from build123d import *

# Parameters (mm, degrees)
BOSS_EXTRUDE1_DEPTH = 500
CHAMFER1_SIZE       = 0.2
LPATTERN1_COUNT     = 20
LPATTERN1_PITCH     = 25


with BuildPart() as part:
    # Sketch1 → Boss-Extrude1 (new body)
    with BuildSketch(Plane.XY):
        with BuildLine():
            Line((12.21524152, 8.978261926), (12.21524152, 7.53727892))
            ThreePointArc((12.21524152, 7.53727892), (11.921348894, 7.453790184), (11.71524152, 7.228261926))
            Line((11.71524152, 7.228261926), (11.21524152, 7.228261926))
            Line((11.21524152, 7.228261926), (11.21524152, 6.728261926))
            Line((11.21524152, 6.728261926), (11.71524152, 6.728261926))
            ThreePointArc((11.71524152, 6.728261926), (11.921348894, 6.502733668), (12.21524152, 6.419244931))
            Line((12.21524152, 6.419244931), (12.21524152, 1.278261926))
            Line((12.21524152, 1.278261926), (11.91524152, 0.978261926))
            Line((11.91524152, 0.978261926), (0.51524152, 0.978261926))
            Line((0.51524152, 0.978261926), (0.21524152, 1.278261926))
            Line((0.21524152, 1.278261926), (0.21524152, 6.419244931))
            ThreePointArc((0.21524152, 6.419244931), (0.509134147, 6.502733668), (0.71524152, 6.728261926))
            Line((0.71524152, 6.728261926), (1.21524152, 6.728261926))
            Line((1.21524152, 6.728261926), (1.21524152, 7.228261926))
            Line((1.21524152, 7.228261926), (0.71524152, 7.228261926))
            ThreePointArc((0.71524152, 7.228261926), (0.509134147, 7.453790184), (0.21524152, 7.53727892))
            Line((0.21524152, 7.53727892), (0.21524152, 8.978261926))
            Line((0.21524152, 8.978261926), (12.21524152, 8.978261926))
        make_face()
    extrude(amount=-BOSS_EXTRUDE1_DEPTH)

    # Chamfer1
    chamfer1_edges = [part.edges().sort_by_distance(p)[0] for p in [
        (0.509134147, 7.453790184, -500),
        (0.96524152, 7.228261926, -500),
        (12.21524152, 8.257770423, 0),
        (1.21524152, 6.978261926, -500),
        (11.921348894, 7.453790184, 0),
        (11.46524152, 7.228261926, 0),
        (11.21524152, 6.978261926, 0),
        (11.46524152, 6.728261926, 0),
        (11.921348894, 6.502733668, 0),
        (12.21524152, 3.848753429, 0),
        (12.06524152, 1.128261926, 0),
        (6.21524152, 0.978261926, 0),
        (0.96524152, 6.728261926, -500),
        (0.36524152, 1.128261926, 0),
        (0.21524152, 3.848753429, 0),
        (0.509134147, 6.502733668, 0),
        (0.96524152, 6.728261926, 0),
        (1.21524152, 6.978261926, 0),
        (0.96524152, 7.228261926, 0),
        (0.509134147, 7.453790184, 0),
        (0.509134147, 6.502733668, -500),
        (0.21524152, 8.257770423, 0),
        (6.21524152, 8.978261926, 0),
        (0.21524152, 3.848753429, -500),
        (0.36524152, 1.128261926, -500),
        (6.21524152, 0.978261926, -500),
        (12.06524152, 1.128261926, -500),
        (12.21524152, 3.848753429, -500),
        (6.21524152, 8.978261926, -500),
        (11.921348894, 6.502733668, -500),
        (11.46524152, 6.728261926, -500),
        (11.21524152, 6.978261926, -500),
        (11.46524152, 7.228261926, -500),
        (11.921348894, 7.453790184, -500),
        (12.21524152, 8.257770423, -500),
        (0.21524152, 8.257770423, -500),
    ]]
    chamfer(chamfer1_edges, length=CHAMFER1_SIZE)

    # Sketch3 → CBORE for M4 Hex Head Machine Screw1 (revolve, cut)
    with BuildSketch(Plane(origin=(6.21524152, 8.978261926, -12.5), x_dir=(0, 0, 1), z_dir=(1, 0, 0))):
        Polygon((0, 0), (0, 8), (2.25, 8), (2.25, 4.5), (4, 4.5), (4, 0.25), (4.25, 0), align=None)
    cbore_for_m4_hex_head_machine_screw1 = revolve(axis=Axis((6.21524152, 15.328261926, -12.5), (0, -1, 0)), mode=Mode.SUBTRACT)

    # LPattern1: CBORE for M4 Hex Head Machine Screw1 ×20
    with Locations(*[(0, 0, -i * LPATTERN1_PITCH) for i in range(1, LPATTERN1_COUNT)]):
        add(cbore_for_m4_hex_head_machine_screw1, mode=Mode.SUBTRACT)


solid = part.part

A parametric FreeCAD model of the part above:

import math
import FreeCAD as App
import Part
import Sketcher
from FreeCAD import Vector
Q = App.Units.Quantity


def edges_at(feature, points):
    """Names of the edges that pass closest to the given points."""
    edges = feature.Shape.Edges
    near = lambda p: min(range(len(edges)), key=lambda i: edges[i].distToShape(Part.Vertex(*p))[0])
    return sorted({f"Edge{near(p) + 1}" for p in points})

doc = App.newDocument("Part")
params = doc.addObject("Spreadsheet::Sheet", "Params")
for row, (alias, value) in enumerate([
    ("sketch1_width", "12 mm"),
    ("sketch1_width2", "0.5 mm"),
    ("sketch1_width3", "11.4 mm"),
    ("pad1_length", "500 mm"),
    ("chamfer_size", "0.2 mm"),
    ("sketch2_width", "8 mm"),
    ("sketch2_width2", "3.5 mm"),
    ("groove_angle", "360 deg"),
    ("linearpattern_pitch", "25 mm"),
], start=1):
    params.set(f"A{row}", alias)
    params.set(f"B{row}", "=" + value)
    params.setAlias(f"B{row}", alias)

body = doc.addObject("PartDesign::Body", "Body")

sketch1 = body.newObject("Sketcher::SketchObject", "Sketch")
sketch1.AttachmentSupport = (doc.getObject("XY_Plane"), [""])
sketch1.MapMode = "FlatFace"
sketch1.addGeometry(Part.LineSegment(Vector(12.22, 7.54, 0), Vector(12.22, 8.98, 0)), False)
sketch1.addGeometry(Part.LineSegment(Vector(12.22, 8.98, 0), Vector(0.22, 8.98, 0)), False)
sketch1.addGeometry(Part.LineSegment(Vector(0.22, 8.98, 0), Vector(0.22, 7.54, 0)), False)
sketch1.addGeometry(Part.ArcOfCircle(Part.Circle(Vector(0.22, 6.98, 0), Vector(0, 0, 1), 0.56), math.radians(27), math.radians(90)), False)
sketch1.addGeometry(Part.LineSegment(Vector(0.72, 7.23, 0), Vector(1.22, 7.23, 0)), False)
sketch1.addGeometry(Part.LineSegment(Vector(1.22, 7.23, 0), Vector(1.22, 6.73, 0)), False)
sketch1.addGeometry(Part.LineSegment(Vector(1.22, 6.73, 0), Vector(0.72, 6.73, 0)), False)
sketch1.addGeometry(Part.ArcOfCircle(Part.Circle(Vector(0.22, 6.98, 0), Vector(0, 0, 1), 0.56), math.radians(-90), math.radians(-27)), False)
sketch1.addGeometry(Part.LineSegment(Vector(0.22, 6.42, 0), Vector(0.22, 1.28, 0)), False)
sketch1.addGeometry(Part.LineSegment(Vector(0.22, 1.28, 0), Vector(0.52, 0.98, 0)), False)
sketch1.addGeometry(Part.LineSegment(Vector(0.52, 0.98, 0), Vector(11.92, 0.98, 0)), False)
sketch1.addGeometry(Part.LineSegment(Vector(11.92, 0.98, 0), Vector(12.22, 1.28, 0)), False)
sketch1.addGeometry(Part.LineSegment(Vector(12.22, 1.28, 0), Vector(12.22, 6.42, 0)), False)
sketch1.addGeometry(Part.ArcOfCircle(Part.Circle(Vector(12.22, 6.98, 0), Vector(0, 0, 1), 0.56), math.radians(-153), math.radians(-90)), False)
sketch1.addGeometry(Part.LineSegment(Vector(11.72, 6.73, 0), Vector(11.22, 6.73, 0)), False)
sketch1.addGeometry(Part.LineSegment(Vector(11.22, 6.73, 0), Vector(11.22, 7.23, 0)), False)
sketch1.addGeometry(Part.LineSegment(Vector(11.22, 7.23, 0), Vector(11.72, 7.23, 0)), False)
sketch1.addGeometry(Part.ArcOfCircle(Part.Circle(Vector(12.22, 6.98, 0), Vector(0, 0, 1), 0.56), math.radians(90), math.radians(153)), False)
sketch1.addConstraint(Sketcher.Constraint("Coincident", 0, 2, 1, 1))
sketch1.addConstraint(Sketcher.Constraint("Coincident", 1, 2, 2, 1))
sketch1.addConstraint(Sketcher.Constraint("Coincident", 2, 2, 3, 2))
sketch1.addConstraint(Sketcher.Constraint("Coincident", 3, 1, 4, 1))
sketch1.addConstraint(Sketcher.Constraint("Coincident", 4, 2, 5, 1))
sketch1.addConstraint(Sketcher.Constraint("Coincident", 5, 2, 6, 1))
sketch1.addConstraint(Sketcher.Constraint("Coincident", 6, 2, 7, 2))
sketch1.addConstraint(Sketcher.Constraint("Coincident", 7, 1, 8, 1))
sketch1.addConstraint(Sketcher.Constraint("Coincident", 8, 2, 9, 1))
sketch1.addConstraint(Sketcher.Constraint("Coincident", 9, 2, 10, 1))
sketch1.addConstraint(Sketcher.Constraint("Coincident", 10, 2, 11, 1))
sketch1.addConstraint(Sketcher.Constraint("Coincident", 11, 2, 12, 1))
sketch1.addConstraint(Sketcher.Constraint("Coincident", 12, 2, 13, 2))
sketch1.addConstraint(Sketcher.Constraint("Coincident", 13, 1, 14, 1))
sketch1.addConstraint(Sketcher.Constraint("Coincident", 14, 2, 15, 1))
sketch1.addConstraint(Sketcher.Constraint("Coincident", 15, 2, 16, 1))
sketch1.addConstraint(Sketcher.Constraint("Coincident", 16, 2, 17, 2))
sketch1.addConstraint(Sketcher.Constraint("Coincident", 17, 1, 0, 1))
sketch1.addConstraint(Sketcher.Constraint("Vertical", 0))
sketch1.addConstraint(Sketcher.Constraint("Horizontal", 1))
sketch1.addConstraint(Sketcher.Constraint("Vertical", 2))
sketch1.addConstraint(Sketcher.Constraint("Horizontal", 4))
sketch1.addConstraint(Sketcher.Constraint("Vertical", 5))
sketch1.addConstraint(Sketcher.Constraint("Horizontal", 6))
sketch1.addConstraint(Sketcher.Constraint("Vertical", 8))
sketch1.addConstraint(Sketcher.Constraint("Horizontal", 10))
sketch1.addConstraint(Sketcher.Constraint("Vertical", 12))
sketch1.addConstraint(Sketcher.Constraint("Horizontal", 14))
sketch1.addConstraint(Sketcher.Constraint("Vertical", 15))
sketch1.addConstraint(Sketcher.Constraint("Horizontal", 16))
sketch1.addConstraint(Sketcher.Constraint("Coincident", 7, 3, 3, 3))
sketch1.addConstraint(Sketcher.Constraint("Coincident", 17, 3, 13, 3))
sketch1.addConstraint(Sketcher.Constraint("Equal", 3, 7))
sketch1.addConstraint(Sketcher.Constraint("Equal", 7, 13))
sketch1.addConstraint(Sketcher.Constraint("Equal", 13, 17))
sketch1.addConstraint(Sketcher.Constraint("Perpendicular", 9, 11))
sketch1.addConstraint(Sketcher.Constraint("Horizontal", 7, 3, 13, 3))
sketch1.addConstraint(Sketcher.Constraint("Horizontal", 8, 2, 11, 2))
sketch1.addConstraint(Sketcher.Constraint("Horizontal", 6, 2, 13, 1))
sketch1.addConstraint(Sketcher.Constraint("Horizontal", 4, 2, 15, 2))
sketch1.addConstraint(Sketcher.Constraint("Vertical", 17, 3, 0, 2))
sketch1.addConstraint(Sketcher.Constraint("Vertical", 7, 3, 1, 2))
sketch1.addConstraint(Sketcher.Constraint("Vertical", 3, 1, 6, 2))
sketch1.addConstraint(Sketcher.Constraint("Vertical", 2, 2, 7, 1))
sketch1.addConstraint(Sketcher.Constraint("Vertical", 0, 2, 11, 2))
sketch1.addConstraint(Sketcher.Constraint("Equal", 6, 14))
sketch1.addConstraint(Sketcher.Constraint("Equal", 16, 5))
sketch1.addConstraint(Sketcher.Constraint("Equal", 9, 11))
sketch1.addConstraint(Sketcher.Constraint("DistanceX", 1, 2, 1, 1, Q("12 mm")))
sketch1.addConstraint(Sketcher.Constraint("DistanceX", 4, 1, 4, 2, Q("0.5 mm")))
sketch1.addConstraint(Sketcher.Constraint("DistanceX", 10, 1, 10, 2, Q("11.4 mm")))
sketch1.addConstraint(Sketcher.Constraint("DistanceY", 13, 3, 0, 2, Q("2 mm")))
sketch1.addConstraint(Sketcher.Constraint("DistanceX", 3, 3, 4, 2, Q("1 mm")))
sketch1.addConstraint(Sketcher.Constraint("DistanceY", 9, 2, 7, 3, Q("6 mm")))
sketch1.addConstraint(Sketcher.Constraint("DistanceX", -1, 1, 3, 3, Q("0.215242 mm")))
sketch1.addConstraint(Sketcher.Constraint("DistanceY", -1, 1, 3, 3, Q("6.978262 mm")))
sketch1.setExpression("Constraints[48]", "Params.sketch1_width")
sketch1.setExpression("Constraints[49]", "Params.sketch1_width2")
sketch1.setExpression("Constraints[50]", "Params.sketch1_width3")
pad1 = body.newObject("PartDesign::Pad", "Pad")
pad1.Profile = sketch1
pad1.setExpression("Length", "Params.pad1_length")
pad1.Reversed = True
doc.recompute()

chamfer = body.newObject("PartDesign::Chamfer", "Chamfer")
chamfer.Base = (pad1, edges_at(pad1, [
    (0.509, 7.454, -500),
    (0.965, 7.228, -500),
    (12.215, 8.258, 0),
    (1.215, 6.978, -500),
    (11.921, 7.454, 0),
    (11.465, 7.228, 0),
    (11.215, 6.978, 0),
    (11.465, 6.728, 0),
    (11.921, 6.503, 0),
    (12.215, 3.849, 0),
    (12.065, 1.128, 0),
    (6.215, 0.978, 0),
    (0.965, 6.728, -500),
    (0.365, 1.128, 0),
    (0.215, 3.849, 0),
    (0.509, 6.503, 0),
    (0.965, 6.728, 0),
    (1.215, 6.978, 0),
    (0.965, 7.228, 0),
    (0.509, 7.454, 0),
    (0.509, 6.503, -500),
    (0.215, 8.258, 0),
    (6.215, 8.978, 0),
    (0.215, 3.849, -500),
    (0.365, 1.128, -500),
    (6.215, 0.978, -500),
    (12.065, 1.128, -500),
    (12.215, 3.849, -500),
    (6.215, 8.978, -500),
    (11.921, 6.503, -500),
    (11.465, 6.728, -500),
    (11.215, 6.978, -500),
    (11.465, 7.228, -500),
    (11.921, 7.454, -500),
    (12.215, 8.258, -500),
    (0.215, 8.258, -500),
]))
chamfer.setExpression("Size", "Params.chamfer_size")

sketch2 = body.newObject("Sketcher::SketchObject", "Sketch001")
sketch2.AttachmentSupport = (doc.getObject("YZ_Plane"), [""])
sketch2.MapMode = "FlatFace"
sketch2.AttachmentOffset = App.Placement(Vector(0, 0, 6.215242), App.Rotation())
sketch2.addGeometry(Part.LineSegment(Vector(0.98, -12.5, 0), Vector(8.98, -12.5, 0)), False)
sketch2.addGeometry(Part.LineSegment(Vector(8.98, -12.5, 0), Vector(8.98, -8.25, 0)), False)
sketch2.addGeometry(Part.LineSegment(Vector(8.98, -8.25, 0), Vector(8.73, -8.5, 0)), False)
sketch2.addGeometry(Part.LineSegment(Vector(8.73, -8.5, 0), Vector(4.48, -8.5, 0)), False)
sketch2.addGeometry(Part.LineSegment(Vector(4.48, -8.5, 0), Vector(4.48, -10.25, 0)), False)
sketch2.addGeometry(Part.LineSegment(Vector(4.48, -10.25, 0), Vector(0.98, -10.25, 0)), False)
sketch2.addGeometry(Part.LineSegment(Vector(0.98, -10.25, 0), Vector(0.98, -12.5, 0)), False)
sketch2.addGeometry(Part.LineSegment(Vector(8.98, -12.5, 0), Vector(0.98, -12.5, 0)), True)
sketch2.addConstraint(Sketcher.Constraint("Coincident", 0, 2, 1, 1))
sketch2.addConstraint(Sketcher.Constraint("Coincident", 1, 2, 2, 1))
sketch2.addConstraint(Sketcher.Constraint("Coincident", 2, 2, 3, 1))
sketch2.addConstraint(Sketcher.Constraint("Coincident", 3, 2, 4, 1))
sketch2.addConstraint(Sketcher.Constraint("Coincident", 4, 2, 5, 1))
sketch2.addConstraint(Sketcher.Constraint("Coincident", 5, 2, 6, 1))
sketch2.addConstraint(Sketcher.Constraint("Coincident", 6, 2, 0, 1))
sketch2.addConstraint(Sketcher.Constraint("Horizontal", 0))
sketch2.addConstraint(Sketcher.Constraint("Vertical", 1))
sketch2.addConstraint(Sketcher.Constraint("Horizontal", 3))
sketch2.addConstraint(Sketcher.Constraint("Vertical", 4))
sketch2.addConstraint(Sketcher.Constraint("Horizontal", 5))
sketch2.addConstraint(Sketcher.Constraint("Vertical", 6))
sketch2.addConstraint(Sketcher.Constraint("Horizontal", 7))
sketch2.addConstraint(Sketcher.Constraint("Coincident", 7, 1, 0, 2))
sketch2.addConstraint(Sketcher.Constraint("Vertical", 5, 2, 7, 2))
sketch2.addConstraint(Sketcher.Constraint("Equal", 3, 1))
sketch2.addConstraint(Sketcher.Constraint("DistanceX", 0, 1, 0, 2, Q("8 mm")))
sketch2.addConstraint(Sketcher.Constraint("Angle", 2, Q("-135 deg")))
sketch2.addConstraint(Sketcher.Constraint("DistanceX", 5, 2, 5, 1, Q("3.5 mm")))
sketch2.addConstraint(Sketcher.Constraint("DistanceY", 0, 2, 2, 2, Q("4 mm")))
sketch2.addConstraint(Sketcher.Constraint("DistanceY", 4, 2, 1, 2, Q("2 mm")))
sketch2.addConstraint(Sketcher.Constraint("DistanceY", 0, 2, -1, 1, Q("12.5 mm")))
sketch2.addConstraint(Sketcher.Constraint("DistanceX", -1, 1, 0, 2, Q("8.978262 mm")))
sketch2.setExpression("Constraints[17]", "Params.sketch2_width")
sketch2.setExpression("Constraints[19]", "Params.sketch2_width2")
groove = body.newObject("PartDesign::Groove", "Groove")
groove.Profile = sketch2
groove.ReferenceAxis = (sketch2, ["Axis0"])
groove.setExpression("Angle", "Params.groove_angle")
doc.recompute()

linearpattern = body.newObject("PartDesign::LinearPattern", "LinearPattern")
linearpattern.Originals = [groove]
linearpattern.Direction = (doc.getObject("Z_Axis"), [""])
linearpattern.Mode = "offset"
linearpattern.setExpression("Offset", "Params.linearpattern_pitch")
linearpattern.Occurrences = 20
linearpattern.Reversed = True
body.Tip = linearpattern

doc.recompute()
